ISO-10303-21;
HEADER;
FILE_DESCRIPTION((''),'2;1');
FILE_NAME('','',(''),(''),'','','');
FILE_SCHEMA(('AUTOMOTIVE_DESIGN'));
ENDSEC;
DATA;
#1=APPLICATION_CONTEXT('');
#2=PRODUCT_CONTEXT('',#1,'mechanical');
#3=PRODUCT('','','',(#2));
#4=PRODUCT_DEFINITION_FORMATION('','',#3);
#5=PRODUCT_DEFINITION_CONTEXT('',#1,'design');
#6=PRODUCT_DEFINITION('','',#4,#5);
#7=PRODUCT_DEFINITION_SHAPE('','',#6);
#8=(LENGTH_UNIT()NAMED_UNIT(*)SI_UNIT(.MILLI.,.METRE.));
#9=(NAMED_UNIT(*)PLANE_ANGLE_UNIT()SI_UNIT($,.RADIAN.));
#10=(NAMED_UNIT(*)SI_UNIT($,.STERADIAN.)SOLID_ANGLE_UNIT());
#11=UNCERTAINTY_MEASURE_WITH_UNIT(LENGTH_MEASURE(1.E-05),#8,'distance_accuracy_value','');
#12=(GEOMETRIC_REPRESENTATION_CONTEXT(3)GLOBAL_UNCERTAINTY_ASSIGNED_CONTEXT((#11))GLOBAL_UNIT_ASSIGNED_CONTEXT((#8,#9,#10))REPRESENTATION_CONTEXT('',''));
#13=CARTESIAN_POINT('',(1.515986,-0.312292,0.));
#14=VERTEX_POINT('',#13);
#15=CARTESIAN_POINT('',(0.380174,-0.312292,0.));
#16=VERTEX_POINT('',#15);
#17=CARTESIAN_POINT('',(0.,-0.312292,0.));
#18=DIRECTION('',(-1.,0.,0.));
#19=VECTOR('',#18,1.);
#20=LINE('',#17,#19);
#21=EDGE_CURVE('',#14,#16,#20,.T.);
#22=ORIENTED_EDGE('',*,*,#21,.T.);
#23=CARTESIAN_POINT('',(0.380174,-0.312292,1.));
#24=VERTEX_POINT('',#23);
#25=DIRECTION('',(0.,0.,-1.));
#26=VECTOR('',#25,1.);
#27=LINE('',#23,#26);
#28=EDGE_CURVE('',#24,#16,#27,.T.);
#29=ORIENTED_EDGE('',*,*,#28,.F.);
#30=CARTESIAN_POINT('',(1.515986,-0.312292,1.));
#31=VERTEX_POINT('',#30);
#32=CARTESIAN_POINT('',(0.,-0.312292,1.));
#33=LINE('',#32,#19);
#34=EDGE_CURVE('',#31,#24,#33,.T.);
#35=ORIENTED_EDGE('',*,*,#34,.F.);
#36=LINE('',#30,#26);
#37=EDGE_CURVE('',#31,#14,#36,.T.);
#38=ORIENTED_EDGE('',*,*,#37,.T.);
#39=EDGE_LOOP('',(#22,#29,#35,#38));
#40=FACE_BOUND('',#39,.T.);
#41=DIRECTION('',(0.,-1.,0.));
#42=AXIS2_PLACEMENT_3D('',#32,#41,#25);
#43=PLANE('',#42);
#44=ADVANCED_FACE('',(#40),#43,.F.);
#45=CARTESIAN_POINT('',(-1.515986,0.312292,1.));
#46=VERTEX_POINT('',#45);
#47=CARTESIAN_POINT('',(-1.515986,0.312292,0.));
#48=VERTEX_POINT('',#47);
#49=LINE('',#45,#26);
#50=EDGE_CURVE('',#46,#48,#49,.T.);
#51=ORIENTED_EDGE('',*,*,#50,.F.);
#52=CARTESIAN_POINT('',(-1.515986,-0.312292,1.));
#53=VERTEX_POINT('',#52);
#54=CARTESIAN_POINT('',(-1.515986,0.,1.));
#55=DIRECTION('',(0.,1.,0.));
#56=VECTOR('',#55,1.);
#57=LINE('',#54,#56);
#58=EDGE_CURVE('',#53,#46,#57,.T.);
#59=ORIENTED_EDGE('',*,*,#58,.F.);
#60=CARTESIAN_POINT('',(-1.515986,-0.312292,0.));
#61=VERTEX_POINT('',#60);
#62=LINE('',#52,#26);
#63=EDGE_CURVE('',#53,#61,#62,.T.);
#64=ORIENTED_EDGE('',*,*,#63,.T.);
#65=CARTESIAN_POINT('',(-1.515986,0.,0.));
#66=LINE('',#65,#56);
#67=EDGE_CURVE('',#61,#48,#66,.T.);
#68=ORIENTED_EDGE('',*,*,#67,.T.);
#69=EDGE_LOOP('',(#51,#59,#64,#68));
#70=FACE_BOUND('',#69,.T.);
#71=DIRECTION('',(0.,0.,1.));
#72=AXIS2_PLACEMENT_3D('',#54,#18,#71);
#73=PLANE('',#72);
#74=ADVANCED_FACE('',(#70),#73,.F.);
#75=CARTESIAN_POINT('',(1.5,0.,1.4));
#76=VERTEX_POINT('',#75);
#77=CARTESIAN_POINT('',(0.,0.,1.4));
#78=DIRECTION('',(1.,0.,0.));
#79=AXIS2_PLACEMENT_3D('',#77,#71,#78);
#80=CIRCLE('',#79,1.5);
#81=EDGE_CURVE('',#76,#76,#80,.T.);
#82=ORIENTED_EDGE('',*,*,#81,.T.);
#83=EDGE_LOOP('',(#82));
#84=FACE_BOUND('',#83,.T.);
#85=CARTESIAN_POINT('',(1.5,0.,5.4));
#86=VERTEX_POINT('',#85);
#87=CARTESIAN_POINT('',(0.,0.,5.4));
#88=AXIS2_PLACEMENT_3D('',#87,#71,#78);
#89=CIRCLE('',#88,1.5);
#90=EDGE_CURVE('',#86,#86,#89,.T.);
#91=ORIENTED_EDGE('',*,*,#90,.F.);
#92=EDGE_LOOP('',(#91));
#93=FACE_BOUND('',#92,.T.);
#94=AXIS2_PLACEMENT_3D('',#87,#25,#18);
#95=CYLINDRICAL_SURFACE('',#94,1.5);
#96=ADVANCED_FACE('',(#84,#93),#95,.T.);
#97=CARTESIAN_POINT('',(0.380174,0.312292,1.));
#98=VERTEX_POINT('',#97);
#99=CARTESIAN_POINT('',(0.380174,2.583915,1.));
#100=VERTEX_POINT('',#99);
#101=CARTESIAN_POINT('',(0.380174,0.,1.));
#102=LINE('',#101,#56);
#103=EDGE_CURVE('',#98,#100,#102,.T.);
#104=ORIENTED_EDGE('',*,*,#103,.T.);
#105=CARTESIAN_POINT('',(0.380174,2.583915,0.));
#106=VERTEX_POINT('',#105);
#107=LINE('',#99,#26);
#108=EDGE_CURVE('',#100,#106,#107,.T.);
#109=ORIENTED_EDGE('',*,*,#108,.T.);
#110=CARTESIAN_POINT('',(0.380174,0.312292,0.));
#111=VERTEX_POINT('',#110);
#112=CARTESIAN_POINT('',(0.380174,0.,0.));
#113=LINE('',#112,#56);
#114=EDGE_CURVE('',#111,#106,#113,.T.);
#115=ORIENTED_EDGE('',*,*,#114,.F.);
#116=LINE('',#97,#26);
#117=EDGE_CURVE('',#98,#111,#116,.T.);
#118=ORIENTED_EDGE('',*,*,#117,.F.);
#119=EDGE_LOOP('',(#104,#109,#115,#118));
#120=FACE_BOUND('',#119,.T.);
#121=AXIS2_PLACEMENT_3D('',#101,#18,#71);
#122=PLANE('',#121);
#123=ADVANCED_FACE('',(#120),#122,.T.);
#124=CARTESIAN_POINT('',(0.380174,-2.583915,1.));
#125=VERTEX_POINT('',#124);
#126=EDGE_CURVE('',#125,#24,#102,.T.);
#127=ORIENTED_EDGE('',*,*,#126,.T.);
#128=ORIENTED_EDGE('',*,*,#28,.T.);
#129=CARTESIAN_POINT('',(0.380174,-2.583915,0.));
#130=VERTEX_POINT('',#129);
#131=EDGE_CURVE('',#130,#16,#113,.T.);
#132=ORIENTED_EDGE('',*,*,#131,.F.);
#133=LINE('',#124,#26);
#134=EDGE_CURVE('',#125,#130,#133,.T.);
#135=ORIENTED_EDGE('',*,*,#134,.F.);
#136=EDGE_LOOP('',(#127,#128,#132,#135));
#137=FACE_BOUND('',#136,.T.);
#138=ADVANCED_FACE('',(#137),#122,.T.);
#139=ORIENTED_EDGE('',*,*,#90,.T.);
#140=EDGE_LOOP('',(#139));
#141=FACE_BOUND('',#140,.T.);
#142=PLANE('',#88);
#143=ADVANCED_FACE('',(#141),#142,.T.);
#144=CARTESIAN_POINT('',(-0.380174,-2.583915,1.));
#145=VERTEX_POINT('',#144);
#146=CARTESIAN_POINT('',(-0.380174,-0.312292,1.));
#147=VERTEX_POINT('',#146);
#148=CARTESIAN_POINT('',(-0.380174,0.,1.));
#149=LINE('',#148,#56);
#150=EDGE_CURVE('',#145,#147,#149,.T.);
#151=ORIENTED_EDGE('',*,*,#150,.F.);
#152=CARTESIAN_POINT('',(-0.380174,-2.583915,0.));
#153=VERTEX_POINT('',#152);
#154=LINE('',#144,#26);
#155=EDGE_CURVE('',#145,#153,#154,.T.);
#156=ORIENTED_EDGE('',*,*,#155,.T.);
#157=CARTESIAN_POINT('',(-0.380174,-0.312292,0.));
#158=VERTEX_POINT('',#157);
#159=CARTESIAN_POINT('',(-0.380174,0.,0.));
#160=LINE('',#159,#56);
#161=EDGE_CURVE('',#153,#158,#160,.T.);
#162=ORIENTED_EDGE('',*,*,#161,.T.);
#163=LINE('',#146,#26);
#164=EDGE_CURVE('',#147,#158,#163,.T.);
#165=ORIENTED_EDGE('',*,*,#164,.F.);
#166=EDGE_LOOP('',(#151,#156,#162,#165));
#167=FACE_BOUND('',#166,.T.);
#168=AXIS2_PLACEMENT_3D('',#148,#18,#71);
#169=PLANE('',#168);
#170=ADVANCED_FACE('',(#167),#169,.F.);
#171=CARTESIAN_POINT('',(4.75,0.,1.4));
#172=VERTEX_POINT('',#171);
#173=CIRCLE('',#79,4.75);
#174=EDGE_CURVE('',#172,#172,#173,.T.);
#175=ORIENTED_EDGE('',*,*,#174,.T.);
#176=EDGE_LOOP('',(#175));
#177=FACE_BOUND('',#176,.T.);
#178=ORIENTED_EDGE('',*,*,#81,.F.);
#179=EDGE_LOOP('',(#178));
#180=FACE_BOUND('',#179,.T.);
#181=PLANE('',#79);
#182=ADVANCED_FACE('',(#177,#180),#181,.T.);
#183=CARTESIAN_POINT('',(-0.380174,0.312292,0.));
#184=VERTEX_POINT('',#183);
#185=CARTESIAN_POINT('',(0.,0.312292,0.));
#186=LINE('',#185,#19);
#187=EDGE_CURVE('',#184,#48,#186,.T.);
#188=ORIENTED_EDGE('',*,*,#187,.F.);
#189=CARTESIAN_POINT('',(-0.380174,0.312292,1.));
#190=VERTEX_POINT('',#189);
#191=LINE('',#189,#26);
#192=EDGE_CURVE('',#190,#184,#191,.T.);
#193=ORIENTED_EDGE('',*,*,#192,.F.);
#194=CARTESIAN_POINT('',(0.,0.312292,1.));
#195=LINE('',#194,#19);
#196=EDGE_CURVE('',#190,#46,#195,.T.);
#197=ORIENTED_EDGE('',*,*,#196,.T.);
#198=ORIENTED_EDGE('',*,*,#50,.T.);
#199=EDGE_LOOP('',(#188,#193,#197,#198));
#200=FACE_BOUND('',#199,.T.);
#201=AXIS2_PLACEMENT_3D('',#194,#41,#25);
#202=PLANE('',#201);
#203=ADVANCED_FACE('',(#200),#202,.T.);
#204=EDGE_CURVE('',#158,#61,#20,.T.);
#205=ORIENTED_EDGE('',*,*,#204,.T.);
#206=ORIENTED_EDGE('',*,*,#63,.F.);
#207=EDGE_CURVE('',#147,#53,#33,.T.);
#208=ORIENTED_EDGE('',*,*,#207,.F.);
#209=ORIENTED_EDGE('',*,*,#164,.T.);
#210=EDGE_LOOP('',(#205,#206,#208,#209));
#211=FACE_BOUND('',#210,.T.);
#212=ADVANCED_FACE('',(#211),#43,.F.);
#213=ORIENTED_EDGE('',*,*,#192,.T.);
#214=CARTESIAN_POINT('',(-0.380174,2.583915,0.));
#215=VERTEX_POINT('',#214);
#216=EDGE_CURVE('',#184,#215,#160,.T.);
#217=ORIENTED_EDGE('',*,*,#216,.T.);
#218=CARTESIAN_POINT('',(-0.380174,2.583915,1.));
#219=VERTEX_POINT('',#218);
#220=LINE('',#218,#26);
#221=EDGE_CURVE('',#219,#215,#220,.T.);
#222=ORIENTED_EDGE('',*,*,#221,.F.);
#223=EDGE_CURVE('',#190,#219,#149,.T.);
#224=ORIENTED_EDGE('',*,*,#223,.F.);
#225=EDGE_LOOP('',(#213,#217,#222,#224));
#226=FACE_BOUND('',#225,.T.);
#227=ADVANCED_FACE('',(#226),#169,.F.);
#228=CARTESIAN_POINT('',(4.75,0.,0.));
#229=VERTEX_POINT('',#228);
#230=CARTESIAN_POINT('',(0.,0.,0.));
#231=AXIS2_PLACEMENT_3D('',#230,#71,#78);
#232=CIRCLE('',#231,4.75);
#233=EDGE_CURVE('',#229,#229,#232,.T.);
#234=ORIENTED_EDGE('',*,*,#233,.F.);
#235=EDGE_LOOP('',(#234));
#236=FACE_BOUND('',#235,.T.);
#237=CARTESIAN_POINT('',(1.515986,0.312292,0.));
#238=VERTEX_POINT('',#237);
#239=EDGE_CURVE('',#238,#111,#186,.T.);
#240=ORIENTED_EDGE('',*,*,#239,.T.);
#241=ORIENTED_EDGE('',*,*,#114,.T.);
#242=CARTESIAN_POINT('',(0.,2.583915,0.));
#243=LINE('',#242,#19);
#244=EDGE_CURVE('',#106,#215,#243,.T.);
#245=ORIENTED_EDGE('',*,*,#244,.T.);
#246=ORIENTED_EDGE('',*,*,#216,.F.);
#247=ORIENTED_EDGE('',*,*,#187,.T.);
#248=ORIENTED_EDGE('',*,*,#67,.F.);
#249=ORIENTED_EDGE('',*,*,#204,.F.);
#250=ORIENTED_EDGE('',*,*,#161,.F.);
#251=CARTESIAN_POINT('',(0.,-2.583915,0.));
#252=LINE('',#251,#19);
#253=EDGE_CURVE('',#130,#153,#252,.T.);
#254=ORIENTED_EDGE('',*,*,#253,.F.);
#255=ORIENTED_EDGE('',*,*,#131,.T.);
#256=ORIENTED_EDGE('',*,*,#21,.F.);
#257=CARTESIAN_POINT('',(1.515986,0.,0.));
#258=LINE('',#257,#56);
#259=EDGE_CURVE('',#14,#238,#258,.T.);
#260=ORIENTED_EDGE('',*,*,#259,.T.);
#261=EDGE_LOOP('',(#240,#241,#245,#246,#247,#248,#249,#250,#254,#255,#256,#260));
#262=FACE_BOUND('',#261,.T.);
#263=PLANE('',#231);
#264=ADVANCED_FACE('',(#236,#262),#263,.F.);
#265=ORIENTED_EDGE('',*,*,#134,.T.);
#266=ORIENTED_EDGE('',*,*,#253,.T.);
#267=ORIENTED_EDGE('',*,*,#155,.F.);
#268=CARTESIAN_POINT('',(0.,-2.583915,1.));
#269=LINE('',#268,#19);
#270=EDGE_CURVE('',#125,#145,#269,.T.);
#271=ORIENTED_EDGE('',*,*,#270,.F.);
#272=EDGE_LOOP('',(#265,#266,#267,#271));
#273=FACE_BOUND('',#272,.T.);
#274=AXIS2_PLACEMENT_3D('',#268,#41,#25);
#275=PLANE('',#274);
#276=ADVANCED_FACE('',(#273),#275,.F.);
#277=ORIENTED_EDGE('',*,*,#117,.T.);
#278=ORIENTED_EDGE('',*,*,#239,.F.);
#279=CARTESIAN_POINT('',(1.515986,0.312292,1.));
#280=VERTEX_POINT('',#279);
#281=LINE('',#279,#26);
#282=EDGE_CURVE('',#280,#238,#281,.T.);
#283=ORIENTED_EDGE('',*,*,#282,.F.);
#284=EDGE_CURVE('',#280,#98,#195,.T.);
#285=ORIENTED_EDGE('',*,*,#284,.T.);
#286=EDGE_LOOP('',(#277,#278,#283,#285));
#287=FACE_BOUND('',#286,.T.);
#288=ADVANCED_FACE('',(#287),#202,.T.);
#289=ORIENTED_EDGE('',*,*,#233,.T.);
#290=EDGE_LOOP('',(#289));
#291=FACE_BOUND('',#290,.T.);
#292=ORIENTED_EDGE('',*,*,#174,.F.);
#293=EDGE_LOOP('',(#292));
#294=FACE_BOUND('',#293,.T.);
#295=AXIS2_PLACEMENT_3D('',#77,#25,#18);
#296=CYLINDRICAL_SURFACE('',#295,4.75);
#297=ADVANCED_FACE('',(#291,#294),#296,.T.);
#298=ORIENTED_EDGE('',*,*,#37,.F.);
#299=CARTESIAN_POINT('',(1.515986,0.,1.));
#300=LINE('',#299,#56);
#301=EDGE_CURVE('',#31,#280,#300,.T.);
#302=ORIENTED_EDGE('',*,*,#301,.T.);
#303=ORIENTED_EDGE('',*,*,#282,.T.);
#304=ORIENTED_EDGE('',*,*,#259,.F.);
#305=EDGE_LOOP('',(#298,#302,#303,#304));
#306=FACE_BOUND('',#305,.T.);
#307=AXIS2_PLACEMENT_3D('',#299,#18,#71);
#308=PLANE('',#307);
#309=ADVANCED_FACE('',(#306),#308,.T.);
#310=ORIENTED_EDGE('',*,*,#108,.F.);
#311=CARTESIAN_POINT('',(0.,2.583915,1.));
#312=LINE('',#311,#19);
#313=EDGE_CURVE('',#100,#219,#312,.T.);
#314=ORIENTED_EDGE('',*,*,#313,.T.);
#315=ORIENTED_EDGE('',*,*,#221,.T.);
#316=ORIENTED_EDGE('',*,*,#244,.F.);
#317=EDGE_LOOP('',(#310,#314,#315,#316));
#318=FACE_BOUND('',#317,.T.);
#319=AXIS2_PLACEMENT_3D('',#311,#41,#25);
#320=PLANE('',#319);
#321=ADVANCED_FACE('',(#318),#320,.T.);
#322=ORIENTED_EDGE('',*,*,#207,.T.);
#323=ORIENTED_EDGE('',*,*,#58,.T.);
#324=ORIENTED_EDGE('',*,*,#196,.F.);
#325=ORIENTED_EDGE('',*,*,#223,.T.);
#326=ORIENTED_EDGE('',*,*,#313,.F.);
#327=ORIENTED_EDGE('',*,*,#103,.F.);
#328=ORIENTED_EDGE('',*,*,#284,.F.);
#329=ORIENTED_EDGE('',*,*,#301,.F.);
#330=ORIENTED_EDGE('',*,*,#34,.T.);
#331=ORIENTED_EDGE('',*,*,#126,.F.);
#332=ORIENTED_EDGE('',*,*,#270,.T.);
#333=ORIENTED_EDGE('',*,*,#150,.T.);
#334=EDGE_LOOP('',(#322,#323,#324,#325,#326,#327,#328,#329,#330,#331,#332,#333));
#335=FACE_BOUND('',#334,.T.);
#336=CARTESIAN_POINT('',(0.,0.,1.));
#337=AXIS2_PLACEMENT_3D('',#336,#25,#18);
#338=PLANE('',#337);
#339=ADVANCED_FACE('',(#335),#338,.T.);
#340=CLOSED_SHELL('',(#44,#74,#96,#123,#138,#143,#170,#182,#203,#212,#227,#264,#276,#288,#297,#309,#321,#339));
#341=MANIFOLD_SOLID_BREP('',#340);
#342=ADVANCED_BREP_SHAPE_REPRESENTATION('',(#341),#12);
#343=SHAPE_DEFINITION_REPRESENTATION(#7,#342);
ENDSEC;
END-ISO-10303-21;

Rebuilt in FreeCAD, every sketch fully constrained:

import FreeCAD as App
import Part
import Sketcher
from FreeCAD import Vector
Q = App.Units.Quantity


def add_polygon(sketch, points):
    """Adds a closed chain of lines whose ends are joined by coincident constraints."""
    first, n = sketch.GeometryCount, len(points)
    for a, b in zip(points, points[1:] + points[:1]):
        sketch.addGeometry(Part.LineSegment(App.Vector(*a, 0), App.Vector(*b, 0)), False)
    for i in range(n):
        sketch.addConstraint(Sketcher.Constraint("Coincident", first + i, 2, first + (i + 1) % n, 1))

doc = App.newDocument("Part")
body = doc.addObject("PartDesign::Body", "Body")

sketch1 = body.newObject("Sketcher::SketchObject", "Sketch")
sketch1.AttachmentSupport = (doc.getObject("XY_Plane"), [""])
sketch1.MapMode = "FlatFace"
sketch1.addGeometry(Part.Circle(Vector(0, 0, 0), Vector(0, 0, 1), 4.8), False)
sketch1.addConstraint(Sketcher.Constraint("Coincident", 0, 3, -1, 1))
sketch1.addConstraint(Sketcher.Constraint("Diameter", 0, Q("9.5 mm")))
pad1 = body.newObject("PartDesign::Pad", "Pad")
pad1.Profile = sketch1
pad1.Length = 1.4

sketch2 = body.newObject("Sketcher::SketchObject", "Sketch001")
sketch2.AttachmentSupport = (doc.getObject("XY_Plane"), [""])
sketch2.MapMode = "FlatFace"
sketch2.AttachmentOffset = App.Placement(Vector(0, 0, 1.4), App.Rotation())
sketch2.addGeometry(Part.Circle(Vector(0, 0, 0), Vector(0, 0, 1), 1.5), False)
sketch2.addConstraint(Sketcher.Constraint("Coincident", 0, 3, -1, 1))
sketch2.addConstraint(Sketcher.Constraint("Diameter", 0, Q("3 mm")))
pad2 = body.newObject("PartDesign::Pad", "Pad001")
pad2.Profile = sketch2
pad2.Length = 4

sketch3 = body.newObject("Sketcher::SketchObject", "Sketch002")
sketch3.AttachmentSupport = (doc.getObject("XY_Plane"), [""])
sketch3.MapMode = "FlatFace"
add_polygon(sketch3, [(0.4, 2.6), (0.4, 0.3), (1.5, 0.3), (1.5, -0.3), (0.4, -0.3), (0.4, -2.6), (-0.4, -2.6), (-0.4, -0.3), (-1.5, -0.3), (-1.5, 0.3), (-0.4, 0.3), (-0.4, 2.6)])
sketch3.addConstraint(Sketcher.Constraint("Vertical", 0))
sketch3.addConstraint(Sketcher.Constraint("Horizontal", 1))
sketch3.addConstraint(Sketcher.Constraint("Vertical", 2))
sketch3.addConstraint(Sketcher.Constraint("Horizontal", 3))
sketch3.addConstraint(Sketcher.Constraint("Vertical", 4))
sketch3.addConstraint(Sketcher.Constraint("Horizontal", 5))
sketch3.addConstraint(Sketcher.Constraint("Vertical", 6))
sketch3.addConstraint(Sketcher.Constraint("Horizontal", 7))
sketch3.addConstraint(Sketcher.Constraint("Vertical", 8))
sketch3.addConstraint(Sketcher.Constraint("Horizontal", 9))
sketch3.addConstraint(Sketcher.Constraint("Vertical", 10))
sketch3.addConstraint(Sketcher.Constraint("Horizontal", 11))
sketch3.addConstraint(Sketcher.Constraint("Symmetric", 0, 2, 6, 2, -1, 1))
sketch3.addConstraint(Sketcher.Constraint("Symmetric", 2, 2, 8, 2, -1, 1))
sketch3.addConstraint(Sketcher.Constraint("Symmetric", 4, 2, 10, 2, -1, 1))
sketch3.addConstraint(Sketcher.Constraint("Symmetric", 3, 2, 6, 2, -2))
sketch3.addConstraint(Sketcher.Constraint("DistanceX", 1, 1, 1, 2, Q("1.135812 mm")))
sketch3.addConstraint(Sketcher.Constraint("DistanceX", 5, 2, 5, 1, Q("0.760348 mm")))
sketch3.addConstraint(Sketcher.Constraint("DistanceY", 0, 2, 0, 1, Q("2.271623 mm")))
sketch3.addConstraint(Sketcher.Constraint("DistanceY", 2, 2, 2, 1, Q("0.624583 mm")))
pocket1 = body.newObject("PartDesign::Pocket", "Pocket")
pocket1.Profile = sketch3
pocket1.Length = 1
pocket1.Reversed = True

doc.recompute()
